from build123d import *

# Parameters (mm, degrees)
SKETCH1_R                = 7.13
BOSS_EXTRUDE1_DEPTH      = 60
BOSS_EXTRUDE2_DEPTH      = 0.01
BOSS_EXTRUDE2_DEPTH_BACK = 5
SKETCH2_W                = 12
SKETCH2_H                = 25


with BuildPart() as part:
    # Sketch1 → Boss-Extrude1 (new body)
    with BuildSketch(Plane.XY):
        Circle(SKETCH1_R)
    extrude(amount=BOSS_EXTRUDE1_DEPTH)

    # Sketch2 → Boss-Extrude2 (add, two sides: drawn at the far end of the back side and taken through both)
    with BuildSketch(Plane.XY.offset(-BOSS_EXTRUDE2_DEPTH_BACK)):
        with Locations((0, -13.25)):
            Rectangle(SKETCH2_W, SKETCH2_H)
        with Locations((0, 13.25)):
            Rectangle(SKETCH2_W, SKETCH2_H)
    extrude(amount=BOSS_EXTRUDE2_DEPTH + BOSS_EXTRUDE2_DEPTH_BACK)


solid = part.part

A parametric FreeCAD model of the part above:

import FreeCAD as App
import Part
import Sketcher
Q = App.Units.Quantity


def add_polygon(sketch, points):
    """Adds a closed chain of lines whose ends are joined by coincident constraints."""
    first, n = sketch.GeometryCount, len(points)
    for a, b in zip(points, points[1:] + points[:1]):
        sketch.addGeometry(Part.LineSegment(App.Vector(*a, 0), App.Vector(*b, 0)), False)
    for i in range(n):
        sketch.addConstraint(Sketcher.Constraint("Coincident", first + i, 2, first + (i + 1) % n, 1))

doc = App.newDocument("Part")
params = doc.addObject("Spreadsheet::Sheet", "Params")
for row, (alias, value) in enumerate([
    ("sketch1_diameter", "14.26 mm"),
    ("pad1_length", "60 mm"),
    ("sketch2_width", "12 mm"),
    ("sketch2_height", "25 mm"),
    ("pad2_length", "0.01 mm"),
    ("pad2_length2", "5 mm"),
], start=1):
    params.set(f"A{row}", alias)
    params.set(f"B{row}", "=" + value)
    params.setAlias(f"B{row}", alias)

body = doc.addObject("PartDesign::Body", "Body")

# Sketch on XY plane
sketch1 = doc.addObject("Sketcher::SketchObject", "Sketch")
body.addObject(sketch1)
sketch1.AttachmentSupport = (doc.XY_Plane, [""])
sketch1.MapMode = "FlatFace"
sketch1.addGeometry(Part.Circle(App.Vector(0, 0, 0), App.Vector(0, 0, 1), 7.13), False)
sketch1.addConstraint(Sketcher.Constraint("Coincident", 0, 3, -1, 1))
sketch1.addConstraint(Sketcher.Constraint("Diameter", 0, Q("14.26 mm")))
sketch1.setExpression("Constraints[1]", "Params.sketch1_diameter")
pad1 = doc.addObject("PartDesign::Pad", "Pad")
body.addObject(pad1)
pad1.Profile = sketch1
pad1.setExpression("Length", "Params.pad1_length")

# Sketch on XY plane
sketch2 = doc.addObject("Sketcher::SketchObject", "Sketch001")
body.addObject(sketch2)
sketch2.AttachmentSupport = (doc.XY_Plane, [""])
sketch2.MapMode = "FlatFace"
add_polygon(sketch2, [(-6, -0.75), (-6, -25.75), (6, -25.75), (6, -0.75)])  # lines 0-3
add_polygon(sketch2, [(-6, 25.75), (-6, 0.75), (6, 0.75), (6, 25.75)])  # lines 4-7
sketch2.addConstraint(Sketcher.Constraint("Vertical", 0))
sketch2.addConstraint(Sketcher.Constraint("Horizontal", 1))
sketch2.addConstraint(Sketcher.Constraint("Vertical", 2))
sketch2.addConstraint(Sketcher.Constraint("Horizontal", 3))
sketch2.addConstraint(Sketcher.Constraint("Vertical", 4))
sketch2.addConstraint(Sketcher.Constraint("Horizontal", 5))
sketch2.addConstraint(Sketcher.Constraint("Vertical", 6))
sketch2.addConstraint(Sketcher.Constraint("Horizontal", 7))
sketch2.addConstraint(Sketcher.Constraint("Symmetric", 2, 2, 4, 2, -1, 1))
sketch2.addConstraint(Sketcher.Constraint("Symmetric", 0, 2, 6, 2, -1, 1))
sketch2.addConstraint(Sketcher.Constraint("Vertical", 3, 2, 4, 2))
sketch2.addConstraint(Sketcher.Constraint("DistanceX", 1, 1, 1, 2, Q("12 mm")))
sketch2.addConstraint(Sketcher.Constraint("DistanceY", 0, 2, 0, 1, Q("25 mm")))
sketch2.addConstraint(Sketcher.Constraint("DistanceY", 3, 2, 4, 2, Q("1.5 mm")))
sketch2.setExpression("Constraints[19]", "Params.sketch2_width")
sketch2.setExpression("Constraints[20]", "Params.sketch2_height")
pad2 = doc.addObject("PartDesign::Pad", "Pad001")
body.addObject(pad2)
pad2.Profile = sketch2
pad2.Type = "TwoLengths"
pad2.setExpression("Length", "Params.pad2_length")
pad2.setExpression("Length2", "Params.pad2_length2")

doc.recompute()
